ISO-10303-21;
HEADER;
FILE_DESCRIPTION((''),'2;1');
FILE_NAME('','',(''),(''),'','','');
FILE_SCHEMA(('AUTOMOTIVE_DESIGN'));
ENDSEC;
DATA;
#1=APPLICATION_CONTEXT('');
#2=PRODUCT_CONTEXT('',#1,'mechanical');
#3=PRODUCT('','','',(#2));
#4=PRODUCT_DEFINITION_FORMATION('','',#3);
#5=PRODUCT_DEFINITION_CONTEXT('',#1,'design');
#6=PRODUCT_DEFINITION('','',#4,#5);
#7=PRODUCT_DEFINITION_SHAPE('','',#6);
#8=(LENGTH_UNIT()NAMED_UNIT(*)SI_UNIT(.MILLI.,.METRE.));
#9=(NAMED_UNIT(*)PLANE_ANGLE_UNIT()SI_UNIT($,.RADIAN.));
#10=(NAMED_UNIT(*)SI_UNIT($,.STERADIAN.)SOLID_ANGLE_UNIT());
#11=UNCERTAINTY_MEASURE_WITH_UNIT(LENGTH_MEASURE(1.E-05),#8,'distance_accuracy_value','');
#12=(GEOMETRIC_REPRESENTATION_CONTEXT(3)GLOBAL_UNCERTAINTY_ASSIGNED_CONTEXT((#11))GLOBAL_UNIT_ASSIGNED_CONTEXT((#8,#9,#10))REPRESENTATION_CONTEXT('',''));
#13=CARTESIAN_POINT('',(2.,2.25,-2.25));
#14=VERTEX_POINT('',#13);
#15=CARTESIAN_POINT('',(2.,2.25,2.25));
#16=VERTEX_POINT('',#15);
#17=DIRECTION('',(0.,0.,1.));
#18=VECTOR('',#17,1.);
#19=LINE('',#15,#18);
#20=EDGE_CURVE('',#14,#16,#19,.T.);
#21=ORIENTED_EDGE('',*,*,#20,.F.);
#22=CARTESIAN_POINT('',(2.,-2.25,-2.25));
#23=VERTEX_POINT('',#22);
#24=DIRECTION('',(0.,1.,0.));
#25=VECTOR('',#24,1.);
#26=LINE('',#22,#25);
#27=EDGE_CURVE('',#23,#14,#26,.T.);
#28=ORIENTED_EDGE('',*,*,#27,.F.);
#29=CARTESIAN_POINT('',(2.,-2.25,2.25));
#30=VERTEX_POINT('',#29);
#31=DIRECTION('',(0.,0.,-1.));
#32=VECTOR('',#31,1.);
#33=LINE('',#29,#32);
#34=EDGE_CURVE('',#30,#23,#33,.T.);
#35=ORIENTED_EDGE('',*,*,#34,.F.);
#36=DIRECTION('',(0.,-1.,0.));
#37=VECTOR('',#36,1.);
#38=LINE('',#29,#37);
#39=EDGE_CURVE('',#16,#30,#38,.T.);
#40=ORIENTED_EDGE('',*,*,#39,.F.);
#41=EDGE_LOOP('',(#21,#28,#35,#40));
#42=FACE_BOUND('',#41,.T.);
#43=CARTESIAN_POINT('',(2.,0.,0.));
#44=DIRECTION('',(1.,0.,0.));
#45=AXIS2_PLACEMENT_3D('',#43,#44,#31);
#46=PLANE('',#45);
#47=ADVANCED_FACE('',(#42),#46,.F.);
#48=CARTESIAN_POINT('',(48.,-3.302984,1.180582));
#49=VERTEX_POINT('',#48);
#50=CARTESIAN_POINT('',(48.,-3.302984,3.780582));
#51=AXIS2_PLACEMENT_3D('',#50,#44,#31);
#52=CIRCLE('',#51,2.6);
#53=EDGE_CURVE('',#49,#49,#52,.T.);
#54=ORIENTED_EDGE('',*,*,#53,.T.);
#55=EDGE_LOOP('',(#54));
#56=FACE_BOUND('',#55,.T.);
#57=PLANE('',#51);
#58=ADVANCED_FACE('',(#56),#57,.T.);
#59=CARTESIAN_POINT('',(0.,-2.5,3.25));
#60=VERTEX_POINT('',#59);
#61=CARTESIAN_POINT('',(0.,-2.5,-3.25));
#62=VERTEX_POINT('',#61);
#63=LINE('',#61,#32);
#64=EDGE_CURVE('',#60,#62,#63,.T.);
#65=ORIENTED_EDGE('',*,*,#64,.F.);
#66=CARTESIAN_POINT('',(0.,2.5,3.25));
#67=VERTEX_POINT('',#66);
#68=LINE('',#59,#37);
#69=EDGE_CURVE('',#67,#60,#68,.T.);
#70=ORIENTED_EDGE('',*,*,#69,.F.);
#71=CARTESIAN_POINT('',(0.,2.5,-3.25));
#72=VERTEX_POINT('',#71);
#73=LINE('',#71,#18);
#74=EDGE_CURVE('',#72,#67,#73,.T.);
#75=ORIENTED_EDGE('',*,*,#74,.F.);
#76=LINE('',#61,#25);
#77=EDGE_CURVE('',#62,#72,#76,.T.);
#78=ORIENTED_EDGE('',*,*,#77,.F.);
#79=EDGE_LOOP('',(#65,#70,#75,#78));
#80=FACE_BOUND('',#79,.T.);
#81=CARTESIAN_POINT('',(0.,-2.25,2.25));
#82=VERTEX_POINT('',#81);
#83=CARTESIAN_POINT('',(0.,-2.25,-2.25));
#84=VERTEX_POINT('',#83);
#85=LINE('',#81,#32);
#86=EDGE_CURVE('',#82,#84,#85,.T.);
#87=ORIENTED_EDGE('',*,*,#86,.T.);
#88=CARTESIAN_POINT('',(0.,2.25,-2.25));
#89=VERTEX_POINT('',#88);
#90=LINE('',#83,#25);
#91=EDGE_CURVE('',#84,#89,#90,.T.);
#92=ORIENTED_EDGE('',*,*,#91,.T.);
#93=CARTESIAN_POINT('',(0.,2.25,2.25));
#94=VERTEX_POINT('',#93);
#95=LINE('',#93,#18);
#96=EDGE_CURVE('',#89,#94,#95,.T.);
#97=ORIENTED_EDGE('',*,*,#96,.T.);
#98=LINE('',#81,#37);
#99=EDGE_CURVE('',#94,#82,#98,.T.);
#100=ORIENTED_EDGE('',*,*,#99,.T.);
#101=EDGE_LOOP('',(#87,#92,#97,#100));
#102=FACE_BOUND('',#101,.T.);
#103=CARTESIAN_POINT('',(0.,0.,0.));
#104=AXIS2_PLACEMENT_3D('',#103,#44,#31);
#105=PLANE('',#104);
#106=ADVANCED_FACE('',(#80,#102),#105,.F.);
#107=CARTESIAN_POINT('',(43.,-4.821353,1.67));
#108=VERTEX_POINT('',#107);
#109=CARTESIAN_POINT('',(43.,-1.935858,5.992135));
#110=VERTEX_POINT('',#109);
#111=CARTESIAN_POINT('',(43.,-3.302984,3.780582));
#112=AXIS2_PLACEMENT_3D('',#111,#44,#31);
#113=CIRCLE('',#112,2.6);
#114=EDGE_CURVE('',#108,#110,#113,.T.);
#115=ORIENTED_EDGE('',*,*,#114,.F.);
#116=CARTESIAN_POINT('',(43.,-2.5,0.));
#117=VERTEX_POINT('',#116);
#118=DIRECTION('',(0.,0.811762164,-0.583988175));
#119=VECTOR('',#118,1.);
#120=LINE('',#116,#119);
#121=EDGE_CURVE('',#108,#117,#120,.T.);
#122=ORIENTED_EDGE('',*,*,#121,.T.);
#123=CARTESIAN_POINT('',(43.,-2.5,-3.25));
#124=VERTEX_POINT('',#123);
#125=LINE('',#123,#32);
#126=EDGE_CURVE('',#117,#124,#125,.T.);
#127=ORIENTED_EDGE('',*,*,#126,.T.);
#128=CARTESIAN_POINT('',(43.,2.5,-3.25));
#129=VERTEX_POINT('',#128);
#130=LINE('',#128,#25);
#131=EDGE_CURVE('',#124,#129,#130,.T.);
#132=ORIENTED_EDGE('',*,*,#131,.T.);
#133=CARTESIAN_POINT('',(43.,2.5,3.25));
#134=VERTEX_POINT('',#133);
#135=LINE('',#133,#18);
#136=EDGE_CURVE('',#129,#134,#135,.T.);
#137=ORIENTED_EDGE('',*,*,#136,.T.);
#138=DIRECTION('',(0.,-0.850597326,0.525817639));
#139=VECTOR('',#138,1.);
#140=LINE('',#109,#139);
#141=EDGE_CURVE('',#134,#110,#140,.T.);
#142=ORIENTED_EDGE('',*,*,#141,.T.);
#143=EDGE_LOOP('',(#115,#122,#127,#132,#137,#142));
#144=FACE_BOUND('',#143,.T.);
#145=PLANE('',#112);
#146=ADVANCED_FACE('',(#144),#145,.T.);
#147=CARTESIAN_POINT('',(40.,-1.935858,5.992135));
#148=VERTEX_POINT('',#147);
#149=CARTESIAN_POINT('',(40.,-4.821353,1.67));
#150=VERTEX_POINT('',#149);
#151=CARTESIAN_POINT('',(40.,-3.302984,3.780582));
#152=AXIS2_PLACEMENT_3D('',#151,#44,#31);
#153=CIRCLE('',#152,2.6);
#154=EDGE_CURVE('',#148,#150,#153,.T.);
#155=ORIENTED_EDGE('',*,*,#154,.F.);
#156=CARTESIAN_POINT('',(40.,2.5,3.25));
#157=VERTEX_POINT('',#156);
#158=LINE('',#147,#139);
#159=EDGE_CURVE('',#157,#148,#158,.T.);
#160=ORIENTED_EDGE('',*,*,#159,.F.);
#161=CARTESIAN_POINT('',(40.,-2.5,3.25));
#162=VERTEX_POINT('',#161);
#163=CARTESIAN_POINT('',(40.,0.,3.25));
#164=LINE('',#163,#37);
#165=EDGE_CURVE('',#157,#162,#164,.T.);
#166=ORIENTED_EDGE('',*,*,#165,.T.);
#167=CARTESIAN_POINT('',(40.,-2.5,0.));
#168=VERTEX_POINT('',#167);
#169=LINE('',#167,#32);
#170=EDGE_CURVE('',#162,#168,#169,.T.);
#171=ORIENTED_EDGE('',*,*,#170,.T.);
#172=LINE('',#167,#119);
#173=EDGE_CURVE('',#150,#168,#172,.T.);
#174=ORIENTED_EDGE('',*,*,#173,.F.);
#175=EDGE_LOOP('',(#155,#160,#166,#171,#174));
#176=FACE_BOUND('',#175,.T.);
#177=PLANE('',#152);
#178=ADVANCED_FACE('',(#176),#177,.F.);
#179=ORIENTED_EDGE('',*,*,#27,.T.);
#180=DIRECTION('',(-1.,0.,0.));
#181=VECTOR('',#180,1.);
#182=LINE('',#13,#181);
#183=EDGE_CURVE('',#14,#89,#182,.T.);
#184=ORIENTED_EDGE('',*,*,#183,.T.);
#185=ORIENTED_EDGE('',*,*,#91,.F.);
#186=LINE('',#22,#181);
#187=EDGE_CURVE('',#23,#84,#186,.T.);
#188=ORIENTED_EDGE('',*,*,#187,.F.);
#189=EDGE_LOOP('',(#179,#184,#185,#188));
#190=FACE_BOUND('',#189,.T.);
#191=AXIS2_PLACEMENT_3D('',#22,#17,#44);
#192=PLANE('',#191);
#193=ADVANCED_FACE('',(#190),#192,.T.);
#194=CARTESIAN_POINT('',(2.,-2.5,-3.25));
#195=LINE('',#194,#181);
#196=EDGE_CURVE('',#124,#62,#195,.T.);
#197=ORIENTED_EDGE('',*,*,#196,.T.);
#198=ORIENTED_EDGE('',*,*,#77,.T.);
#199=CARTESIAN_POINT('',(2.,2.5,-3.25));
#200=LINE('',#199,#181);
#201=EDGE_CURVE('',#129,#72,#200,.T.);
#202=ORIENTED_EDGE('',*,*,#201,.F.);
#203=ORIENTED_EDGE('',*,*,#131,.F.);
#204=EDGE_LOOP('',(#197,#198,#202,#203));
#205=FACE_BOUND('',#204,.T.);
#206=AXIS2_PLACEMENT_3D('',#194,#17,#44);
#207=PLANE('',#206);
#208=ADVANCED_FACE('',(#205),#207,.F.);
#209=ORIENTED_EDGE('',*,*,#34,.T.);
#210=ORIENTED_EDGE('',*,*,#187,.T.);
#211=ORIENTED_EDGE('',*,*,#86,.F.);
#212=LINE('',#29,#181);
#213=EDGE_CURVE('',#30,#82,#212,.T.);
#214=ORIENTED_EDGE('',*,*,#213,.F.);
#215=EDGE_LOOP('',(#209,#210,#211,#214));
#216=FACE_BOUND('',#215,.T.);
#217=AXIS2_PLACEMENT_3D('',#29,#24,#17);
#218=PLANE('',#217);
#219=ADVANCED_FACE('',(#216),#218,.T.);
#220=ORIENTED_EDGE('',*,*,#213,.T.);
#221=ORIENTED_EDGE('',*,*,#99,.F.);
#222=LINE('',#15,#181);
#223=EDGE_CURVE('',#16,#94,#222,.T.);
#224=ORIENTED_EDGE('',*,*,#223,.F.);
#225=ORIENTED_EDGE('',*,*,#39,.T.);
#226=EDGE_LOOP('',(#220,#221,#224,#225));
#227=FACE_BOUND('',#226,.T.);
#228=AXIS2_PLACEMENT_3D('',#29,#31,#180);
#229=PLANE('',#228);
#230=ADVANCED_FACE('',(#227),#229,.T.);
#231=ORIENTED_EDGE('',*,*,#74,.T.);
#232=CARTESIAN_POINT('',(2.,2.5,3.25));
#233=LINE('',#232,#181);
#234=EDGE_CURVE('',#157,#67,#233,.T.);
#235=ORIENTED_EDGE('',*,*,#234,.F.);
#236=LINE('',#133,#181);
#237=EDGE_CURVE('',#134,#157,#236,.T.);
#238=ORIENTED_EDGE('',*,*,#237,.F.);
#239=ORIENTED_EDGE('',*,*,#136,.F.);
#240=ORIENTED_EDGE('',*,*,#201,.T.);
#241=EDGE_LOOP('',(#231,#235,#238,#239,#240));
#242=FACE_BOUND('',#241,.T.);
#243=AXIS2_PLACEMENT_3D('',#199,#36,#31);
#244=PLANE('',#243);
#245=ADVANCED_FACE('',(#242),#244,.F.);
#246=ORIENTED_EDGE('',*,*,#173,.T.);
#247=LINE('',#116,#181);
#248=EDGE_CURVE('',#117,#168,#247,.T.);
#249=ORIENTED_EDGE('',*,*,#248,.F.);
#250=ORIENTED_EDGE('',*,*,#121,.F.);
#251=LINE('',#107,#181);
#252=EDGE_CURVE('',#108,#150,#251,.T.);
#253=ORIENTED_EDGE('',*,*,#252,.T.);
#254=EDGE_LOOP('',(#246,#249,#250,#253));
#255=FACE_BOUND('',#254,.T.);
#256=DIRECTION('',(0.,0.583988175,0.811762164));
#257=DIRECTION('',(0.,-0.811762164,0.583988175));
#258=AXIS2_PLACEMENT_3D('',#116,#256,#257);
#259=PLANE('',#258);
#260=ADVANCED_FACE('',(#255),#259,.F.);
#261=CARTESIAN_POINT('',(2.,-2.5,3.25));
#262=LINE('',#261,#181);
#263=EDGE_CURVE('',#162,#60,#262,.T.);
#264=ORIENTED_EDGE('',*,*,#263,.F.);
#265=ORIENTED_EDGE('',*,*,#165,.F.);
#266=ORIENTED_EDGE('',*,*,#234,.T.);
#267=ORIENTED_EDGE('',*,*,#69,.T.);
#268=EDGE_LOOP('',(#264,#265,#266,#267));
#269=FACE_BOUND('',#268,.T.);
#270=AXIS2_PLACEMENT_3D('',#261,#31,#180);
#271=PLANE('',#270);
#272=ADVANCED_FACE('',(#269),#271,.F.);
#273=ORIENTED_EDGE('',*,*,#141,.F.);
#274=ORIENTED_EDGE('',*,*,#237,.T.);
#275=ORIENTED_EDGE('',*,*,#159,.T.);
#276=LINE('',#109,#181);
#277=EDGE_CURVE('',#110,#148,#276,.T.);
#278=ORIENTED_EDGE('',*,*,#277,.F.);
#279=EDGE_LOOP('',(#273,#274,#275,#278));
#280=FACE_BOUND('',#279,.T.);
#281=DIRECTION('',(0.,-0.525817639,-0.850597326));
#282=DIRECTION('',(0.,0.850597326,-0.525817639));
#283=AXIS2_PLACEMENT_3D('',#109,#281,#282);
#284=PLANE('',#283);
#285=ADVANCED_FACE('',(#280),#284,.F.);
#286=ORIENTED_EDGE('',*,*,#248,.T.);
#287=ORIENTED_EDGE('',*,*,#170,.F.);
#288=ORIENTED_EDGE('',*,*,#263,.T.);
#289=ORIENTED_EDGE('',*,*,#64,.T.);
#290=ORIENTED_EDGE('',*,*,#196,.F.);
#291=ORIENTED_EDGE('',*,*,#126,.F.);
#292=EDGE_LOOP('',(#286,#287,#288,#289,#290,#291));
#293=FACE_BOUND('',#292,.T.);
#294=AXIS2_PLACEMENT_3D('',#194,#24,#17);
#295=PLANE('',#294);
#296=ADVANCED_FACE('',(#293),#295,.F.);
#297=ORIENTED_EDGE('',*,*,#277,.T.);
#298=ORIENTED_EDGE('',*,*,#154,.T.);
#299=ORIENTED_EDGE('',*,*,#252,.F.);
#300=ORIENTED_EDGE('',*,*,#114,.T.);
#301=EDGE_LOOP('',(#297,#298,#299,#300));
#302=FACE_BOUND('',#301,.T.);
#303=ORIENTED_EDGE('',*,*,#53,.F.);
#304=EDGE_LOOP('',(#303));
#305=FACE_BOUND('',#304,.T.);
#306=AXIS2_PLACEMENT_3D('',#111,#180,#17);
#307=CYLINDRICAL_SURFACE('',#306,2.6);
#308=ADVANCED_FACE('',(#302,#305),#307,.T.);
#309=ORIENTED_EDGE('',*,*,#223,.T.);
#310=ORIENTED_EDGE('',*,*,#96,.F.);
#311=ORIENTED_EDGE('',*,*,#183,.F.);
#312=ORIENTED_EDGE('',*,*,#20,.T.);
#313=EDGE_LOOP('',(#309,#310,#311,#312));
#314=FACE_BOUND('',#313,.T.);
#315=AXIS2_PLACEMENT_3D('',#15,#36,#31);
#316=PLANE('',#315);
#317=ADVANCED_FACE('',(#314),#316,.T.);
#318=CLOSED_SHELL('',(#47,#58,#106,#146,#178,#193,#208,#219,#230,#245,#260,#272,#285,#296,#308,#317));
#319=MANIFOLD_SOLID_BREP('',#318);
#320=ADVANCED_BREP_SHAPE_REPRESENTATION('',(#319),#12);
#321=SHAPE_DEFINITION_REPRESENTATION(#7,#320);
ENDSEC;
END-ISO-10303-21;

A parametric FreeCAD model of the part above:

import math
import FreeCAD as App
import Part
import Sketcher

doc = App.newDocument("Part")
body = doc.addObject("PartDesign::Body", "Body")

sketch1 = body.newObject("Sketcher::SketchObject", "Sketch")
sketch1.AttachmentSupport = (doc.getObject("YZ_Plane"), [""])
sketch1.MapMode = "FlatFace"
sketch1.addGeometry(Part.LineSegment(App.Vector(2.5, 3.2, 0), App.Vector(-2.5, 3.2, 0)), False)
sketch1.addGeometry(Part.LineSegment(App.Vector(-2.5, 3.2, 0), App.Vector(-2.5, -3.2, 0)), False)
sketch1.addGeometry(Part.LineSegment(App.Vector(-2.5, -3.2, 0), App.Vector(2.5, -3.2, 0)), False)
sketch1.addGeometry(Part.LineSegment(App.Vector(2.5, -3.2, 0), App.Vector(2.5, 3.2, 0)), False)
sketch1.addGeometry(Part.LineSegment(App.Vector(-2.2, -2.2, 0), App.Vector(-2.2, 2.2, 0)), False)
sketch1.addGeometry(Part.LineSegment(App.Vector(-2.2, 2.2, 0), App.Vector(2.2, 2.2, 0)), False)
sketch1.addGeometry(Part.LineSegment(App.Vector(2.2, 2.2, 0), App.Vector(2.2, -2.2, 0)), False)
sketch1.addGeometry(Part.LineSegment(App.Vector(2.2, -2.2, 0), App.Vector(-2.2, -2.2, 0)), False)
sketch1.addConstraint(Sketcher.Constraint("Coincident", 0, 2, 1, 1))
sketch1.addConstraint(Sketcher.Constraint("Coincident", 1, 2, 2, 1))
sketch1.addConstraint(Sketcher.Constraint("Coincident", 2, 2, 3, 1))
sketch1.addConstraint(Sketcher.Constraint("Coincident", 3, 2, 0, 1))
sketch1.addConstraint(Sketcher.Constraint("Coincident", 4, 2, 5, 1))
sketch1.addConstraint(Sketcher.Constraint("Coincident", 5, 2, 6, 1))
sketch1.addConstraint(Sketcher.Constraint("Coincident", 6, 2, 7, 1))
sketch1.addConstraint(Sketcher.Constraint("Coincident", 7, 2, 4, 1))
sketch1.addConstraint(Sketcher.Constraint("Horizontal", 0))
sketch1.addConstraint(Sketcher.Constraint("Vertical", 1))
sketch1.addConstraint(Sketcher.Constraint("Horizontal", 2))
sketch1.addConstraint(Sketcher.Constraint("Vertical", 3))
sketch1.addConstraint(Sketcher.Constraint("Vertical", 4))
sketch1.addConstraint(Sketcher.Constraint("Horizontal", 5))
sketch1.addConstraint(Sketcher.Constraint("Vertical", 6))
sketch1.addConstraint(Sketcher.Constraint("Horizontal", 7))
sketch1.addConstraint(Sketcher.Constraint("Symmetric", 0, 2, 2, 2, -1, 1))
sketch1.addConstraint(Sketcher.Constraint("Symmetric", 4, 2, 6, 2, -1, 1))
sketch1.addConstraint(Sketcher.Constraint("Equal", 7, 4))
sketch1.addConstraint(Sketcher.Constraint("DistanceX", 0, 2, 0, 1, 5.0))
sketch1.addConstraint(Sketcher.Constraint("DistanceX", 5, 1, 5, 2, 4.5))
sketch1.addConstraint(Sketcher.Constraint("DistanceY", 1, 2, 1, 1, 6.5))
pad1 = body.newObject("PartDesign::Pad", "Pad")
pad1.Profile = sketch1
pad1.Length = 2

sketch2 = body.newObject("Sketcher::SketchObject", "Sketch001")
sketch2.AttachmentSupport = (doc.getObject("YZ_Plane"), [""])
sketch2.MapMode = "FlatFace"
sketch2.AttachmentOffset = App.Placement(App.Vector(0, 0, 2), App.Rotation())
sketch2.addGeometry(Part.LineSegment(App.Vector(2, 3, 0), App.Vector(-2, 3, 0)), False)
sketch2.addGeometry(Part.LineSegment(App.Vector(-2, 3, 0), App.Vector(-2, -3, 0)), False)
sketch2.addGeometry(Part.LineSegment(App.Vector(-2, -3, 0), App.Vector(2, -3, 0)), False)
sketch2.addGeometry(Part.LineSegment(App.Vector(2, -3, 0), App.Vector(2, 3, 0)), False)
sketch2.addConstraint(Sketcher.Constraint("Coincident", 0, 2, 1, 1))
sketch2.addConstraint(Sketcher.Constraint("Coincident", 1, 2, 2, 1))
sketch2.addConstraint(Sketcher.Constraint("Coincident", 2, 2, 3, 1))
sketch2.addConstraint(Sketcher.Constraint("Coincident", 3, 2, 0, 1))
sketch2.addConstraint(Sketcher.Constraint("Horizontal", 0))
sketch2.addConstraint(Sketcher.Constraint("Vertical", 1))
sketch2.addConstraint(Sketcher.Constraint("Horizontal", 2))
sketch2.addConstraint(Sketcher.Constraint("Vertical", 3))
sketch2.addConstraint(Sketcher.Constraint("Symmetric", 0, 2, 2, 2, -1, 1))
sketch2.addConstraint(Sketcher.Constraint("DistanceX", 0, 2, 0, 1, 5.0))
sketch2.addConstraint(Sketcher.Constraint("DistanceY", 1, 2, 1, 1, 6.5))
pad2 = body.newObject("PartDesign::Pad", "Pad001")
pad2.Profile = sketch2
pad2.Length = 38

sketch3 = body.newObject("Sketcher::SketchObject", "Sketch002")
sketch3.AttachmentSupport = (doc.getObject("YZ_Plane"), [""])
sketch3.MapMode = "FlatFace"
sketch3.AttachmentOffset = App.Placement(App.Vector(0, 0, 40), App.Rotation())
sketch3.addGeometry(Part.LineSegment(App.Vector(2.5, 3.2, 0), App.Vector(-1.9, 6, 0)), False)
sketch3.addGeometry(Part.ArcOfCircle(Part.Circle(App.Vector(-3.3, 3.8, 0), App.Vector(0, 0, 1), 2.6), math.radians(58), math.radians(234)), False)
sketch3.addGeometry(Part.LineSegment(App.Vector(-4.8, 1.7, 0), App.Vector(-2.5, 0, 0)), False)
sketch3.addGeometry(Part.LineSegment(App.Vector(-2.5, 0, 0), App.Vector(-2.5, -3.2, 0)), False)
sketch3.addGeometry(Part.LineSegment(App.Vector(-2.5, -3.2, 0), App.Vector(2.5, -3.2, 0)), False)
sketch3.addGeometry(Part.LineSegment(App.Vector(2.5, -3.2, 0), App.Vector(2.5, 3.2, 0)), False)
sketch3.addConstraint(Sketcher.Constraint("Tangent", 0, 2, 1, 1))
sketch3.addConstraint(Sketcher.Constraint("Tangent", 1, 2, 2, 1))
sketch3.addConstraint(Sketcher.Constraint("Coincident", 2, 2, 3, 1))
sketch3.addConstraint(Sketcher.Constraint("Coincident", 3, 2, 4, 1))
sketch3.addConstraint(Sketcher.Constraint("Coincident", 4, 2, 5, 1))
sketch3.addConstraint(Sketcher.Constraint("Coincident", 5, 2, 0, 1))
sketch3.addConstraint(Sketcher.Constraint("Vertical", 3))
sketch3.addConstraint(Sketcher.Constraint("Horizontal", 4))
sketch3.addConstraint(Sketcher.Constraint("Vertical", 5))
sketch3.addConstraint(Sketcher.Constraint("Symmetric", 3, 2, 5, 2, -1, 1))
sketch3.addConstraint(Sketcher.Constraint("PointOnObject", 2, 2, -1))
sketch3.addConstraint(Sketcher.Constraint("Radius", 1, 2.6))
sketch3.addConstraint(Sketcher.Constraint("DistanceX", 4, 1, 4, 2, 5.0))
sketch3.addConstraint(Sketcher.Constraint("DistanceY", 5, 1, 5, 2, 6.5))
sketch3.addConstraint(Sketcher.Constraint("DistanceY", -1, 1, 1, 2, 1.67))
sketch3.addConstraint(Sketcher.Constraint("Distance", 0, 5.214992))
pad3 = body.newObject("PartDesign::Pad", "Pad002")
pad3.Profile = sketch3
pad3.Length = 3

sketch4 = body.newObject("Sketcher::SketchObject", "Sketch003")
sketch4.AttachmentSupport = (doc.getObject("YZ_Plane"), [""])
sketch4.MapMode = "FlatFace"
sketch4.AttachmentOffset = App.Placement(App.Vector(0, 0, 43), App.Rotation())
sketch4.addGeometry(Part.Circle(App.Vector(-3.3, 3.8, 0), App.Vector(0, 0, 1), 2.6), False)
sketch4.addConstraint(Sketcher.Constraint("Diameter", 0, 5.2))
sketch4.addConstraint(Sketcher.Constraint("DistanceY", -1, 1, 0, 3, 3.780582))
sketch4.addConstraint(Sketcher.Constraint("DistanceX", 0, 3, -1, 1, 3.302984))
pad4 = body.newObject("PartDesign::Pad", "Pad003")
pad4.Profile = sketch4
pad4.Length = 5

doc.recompute()
